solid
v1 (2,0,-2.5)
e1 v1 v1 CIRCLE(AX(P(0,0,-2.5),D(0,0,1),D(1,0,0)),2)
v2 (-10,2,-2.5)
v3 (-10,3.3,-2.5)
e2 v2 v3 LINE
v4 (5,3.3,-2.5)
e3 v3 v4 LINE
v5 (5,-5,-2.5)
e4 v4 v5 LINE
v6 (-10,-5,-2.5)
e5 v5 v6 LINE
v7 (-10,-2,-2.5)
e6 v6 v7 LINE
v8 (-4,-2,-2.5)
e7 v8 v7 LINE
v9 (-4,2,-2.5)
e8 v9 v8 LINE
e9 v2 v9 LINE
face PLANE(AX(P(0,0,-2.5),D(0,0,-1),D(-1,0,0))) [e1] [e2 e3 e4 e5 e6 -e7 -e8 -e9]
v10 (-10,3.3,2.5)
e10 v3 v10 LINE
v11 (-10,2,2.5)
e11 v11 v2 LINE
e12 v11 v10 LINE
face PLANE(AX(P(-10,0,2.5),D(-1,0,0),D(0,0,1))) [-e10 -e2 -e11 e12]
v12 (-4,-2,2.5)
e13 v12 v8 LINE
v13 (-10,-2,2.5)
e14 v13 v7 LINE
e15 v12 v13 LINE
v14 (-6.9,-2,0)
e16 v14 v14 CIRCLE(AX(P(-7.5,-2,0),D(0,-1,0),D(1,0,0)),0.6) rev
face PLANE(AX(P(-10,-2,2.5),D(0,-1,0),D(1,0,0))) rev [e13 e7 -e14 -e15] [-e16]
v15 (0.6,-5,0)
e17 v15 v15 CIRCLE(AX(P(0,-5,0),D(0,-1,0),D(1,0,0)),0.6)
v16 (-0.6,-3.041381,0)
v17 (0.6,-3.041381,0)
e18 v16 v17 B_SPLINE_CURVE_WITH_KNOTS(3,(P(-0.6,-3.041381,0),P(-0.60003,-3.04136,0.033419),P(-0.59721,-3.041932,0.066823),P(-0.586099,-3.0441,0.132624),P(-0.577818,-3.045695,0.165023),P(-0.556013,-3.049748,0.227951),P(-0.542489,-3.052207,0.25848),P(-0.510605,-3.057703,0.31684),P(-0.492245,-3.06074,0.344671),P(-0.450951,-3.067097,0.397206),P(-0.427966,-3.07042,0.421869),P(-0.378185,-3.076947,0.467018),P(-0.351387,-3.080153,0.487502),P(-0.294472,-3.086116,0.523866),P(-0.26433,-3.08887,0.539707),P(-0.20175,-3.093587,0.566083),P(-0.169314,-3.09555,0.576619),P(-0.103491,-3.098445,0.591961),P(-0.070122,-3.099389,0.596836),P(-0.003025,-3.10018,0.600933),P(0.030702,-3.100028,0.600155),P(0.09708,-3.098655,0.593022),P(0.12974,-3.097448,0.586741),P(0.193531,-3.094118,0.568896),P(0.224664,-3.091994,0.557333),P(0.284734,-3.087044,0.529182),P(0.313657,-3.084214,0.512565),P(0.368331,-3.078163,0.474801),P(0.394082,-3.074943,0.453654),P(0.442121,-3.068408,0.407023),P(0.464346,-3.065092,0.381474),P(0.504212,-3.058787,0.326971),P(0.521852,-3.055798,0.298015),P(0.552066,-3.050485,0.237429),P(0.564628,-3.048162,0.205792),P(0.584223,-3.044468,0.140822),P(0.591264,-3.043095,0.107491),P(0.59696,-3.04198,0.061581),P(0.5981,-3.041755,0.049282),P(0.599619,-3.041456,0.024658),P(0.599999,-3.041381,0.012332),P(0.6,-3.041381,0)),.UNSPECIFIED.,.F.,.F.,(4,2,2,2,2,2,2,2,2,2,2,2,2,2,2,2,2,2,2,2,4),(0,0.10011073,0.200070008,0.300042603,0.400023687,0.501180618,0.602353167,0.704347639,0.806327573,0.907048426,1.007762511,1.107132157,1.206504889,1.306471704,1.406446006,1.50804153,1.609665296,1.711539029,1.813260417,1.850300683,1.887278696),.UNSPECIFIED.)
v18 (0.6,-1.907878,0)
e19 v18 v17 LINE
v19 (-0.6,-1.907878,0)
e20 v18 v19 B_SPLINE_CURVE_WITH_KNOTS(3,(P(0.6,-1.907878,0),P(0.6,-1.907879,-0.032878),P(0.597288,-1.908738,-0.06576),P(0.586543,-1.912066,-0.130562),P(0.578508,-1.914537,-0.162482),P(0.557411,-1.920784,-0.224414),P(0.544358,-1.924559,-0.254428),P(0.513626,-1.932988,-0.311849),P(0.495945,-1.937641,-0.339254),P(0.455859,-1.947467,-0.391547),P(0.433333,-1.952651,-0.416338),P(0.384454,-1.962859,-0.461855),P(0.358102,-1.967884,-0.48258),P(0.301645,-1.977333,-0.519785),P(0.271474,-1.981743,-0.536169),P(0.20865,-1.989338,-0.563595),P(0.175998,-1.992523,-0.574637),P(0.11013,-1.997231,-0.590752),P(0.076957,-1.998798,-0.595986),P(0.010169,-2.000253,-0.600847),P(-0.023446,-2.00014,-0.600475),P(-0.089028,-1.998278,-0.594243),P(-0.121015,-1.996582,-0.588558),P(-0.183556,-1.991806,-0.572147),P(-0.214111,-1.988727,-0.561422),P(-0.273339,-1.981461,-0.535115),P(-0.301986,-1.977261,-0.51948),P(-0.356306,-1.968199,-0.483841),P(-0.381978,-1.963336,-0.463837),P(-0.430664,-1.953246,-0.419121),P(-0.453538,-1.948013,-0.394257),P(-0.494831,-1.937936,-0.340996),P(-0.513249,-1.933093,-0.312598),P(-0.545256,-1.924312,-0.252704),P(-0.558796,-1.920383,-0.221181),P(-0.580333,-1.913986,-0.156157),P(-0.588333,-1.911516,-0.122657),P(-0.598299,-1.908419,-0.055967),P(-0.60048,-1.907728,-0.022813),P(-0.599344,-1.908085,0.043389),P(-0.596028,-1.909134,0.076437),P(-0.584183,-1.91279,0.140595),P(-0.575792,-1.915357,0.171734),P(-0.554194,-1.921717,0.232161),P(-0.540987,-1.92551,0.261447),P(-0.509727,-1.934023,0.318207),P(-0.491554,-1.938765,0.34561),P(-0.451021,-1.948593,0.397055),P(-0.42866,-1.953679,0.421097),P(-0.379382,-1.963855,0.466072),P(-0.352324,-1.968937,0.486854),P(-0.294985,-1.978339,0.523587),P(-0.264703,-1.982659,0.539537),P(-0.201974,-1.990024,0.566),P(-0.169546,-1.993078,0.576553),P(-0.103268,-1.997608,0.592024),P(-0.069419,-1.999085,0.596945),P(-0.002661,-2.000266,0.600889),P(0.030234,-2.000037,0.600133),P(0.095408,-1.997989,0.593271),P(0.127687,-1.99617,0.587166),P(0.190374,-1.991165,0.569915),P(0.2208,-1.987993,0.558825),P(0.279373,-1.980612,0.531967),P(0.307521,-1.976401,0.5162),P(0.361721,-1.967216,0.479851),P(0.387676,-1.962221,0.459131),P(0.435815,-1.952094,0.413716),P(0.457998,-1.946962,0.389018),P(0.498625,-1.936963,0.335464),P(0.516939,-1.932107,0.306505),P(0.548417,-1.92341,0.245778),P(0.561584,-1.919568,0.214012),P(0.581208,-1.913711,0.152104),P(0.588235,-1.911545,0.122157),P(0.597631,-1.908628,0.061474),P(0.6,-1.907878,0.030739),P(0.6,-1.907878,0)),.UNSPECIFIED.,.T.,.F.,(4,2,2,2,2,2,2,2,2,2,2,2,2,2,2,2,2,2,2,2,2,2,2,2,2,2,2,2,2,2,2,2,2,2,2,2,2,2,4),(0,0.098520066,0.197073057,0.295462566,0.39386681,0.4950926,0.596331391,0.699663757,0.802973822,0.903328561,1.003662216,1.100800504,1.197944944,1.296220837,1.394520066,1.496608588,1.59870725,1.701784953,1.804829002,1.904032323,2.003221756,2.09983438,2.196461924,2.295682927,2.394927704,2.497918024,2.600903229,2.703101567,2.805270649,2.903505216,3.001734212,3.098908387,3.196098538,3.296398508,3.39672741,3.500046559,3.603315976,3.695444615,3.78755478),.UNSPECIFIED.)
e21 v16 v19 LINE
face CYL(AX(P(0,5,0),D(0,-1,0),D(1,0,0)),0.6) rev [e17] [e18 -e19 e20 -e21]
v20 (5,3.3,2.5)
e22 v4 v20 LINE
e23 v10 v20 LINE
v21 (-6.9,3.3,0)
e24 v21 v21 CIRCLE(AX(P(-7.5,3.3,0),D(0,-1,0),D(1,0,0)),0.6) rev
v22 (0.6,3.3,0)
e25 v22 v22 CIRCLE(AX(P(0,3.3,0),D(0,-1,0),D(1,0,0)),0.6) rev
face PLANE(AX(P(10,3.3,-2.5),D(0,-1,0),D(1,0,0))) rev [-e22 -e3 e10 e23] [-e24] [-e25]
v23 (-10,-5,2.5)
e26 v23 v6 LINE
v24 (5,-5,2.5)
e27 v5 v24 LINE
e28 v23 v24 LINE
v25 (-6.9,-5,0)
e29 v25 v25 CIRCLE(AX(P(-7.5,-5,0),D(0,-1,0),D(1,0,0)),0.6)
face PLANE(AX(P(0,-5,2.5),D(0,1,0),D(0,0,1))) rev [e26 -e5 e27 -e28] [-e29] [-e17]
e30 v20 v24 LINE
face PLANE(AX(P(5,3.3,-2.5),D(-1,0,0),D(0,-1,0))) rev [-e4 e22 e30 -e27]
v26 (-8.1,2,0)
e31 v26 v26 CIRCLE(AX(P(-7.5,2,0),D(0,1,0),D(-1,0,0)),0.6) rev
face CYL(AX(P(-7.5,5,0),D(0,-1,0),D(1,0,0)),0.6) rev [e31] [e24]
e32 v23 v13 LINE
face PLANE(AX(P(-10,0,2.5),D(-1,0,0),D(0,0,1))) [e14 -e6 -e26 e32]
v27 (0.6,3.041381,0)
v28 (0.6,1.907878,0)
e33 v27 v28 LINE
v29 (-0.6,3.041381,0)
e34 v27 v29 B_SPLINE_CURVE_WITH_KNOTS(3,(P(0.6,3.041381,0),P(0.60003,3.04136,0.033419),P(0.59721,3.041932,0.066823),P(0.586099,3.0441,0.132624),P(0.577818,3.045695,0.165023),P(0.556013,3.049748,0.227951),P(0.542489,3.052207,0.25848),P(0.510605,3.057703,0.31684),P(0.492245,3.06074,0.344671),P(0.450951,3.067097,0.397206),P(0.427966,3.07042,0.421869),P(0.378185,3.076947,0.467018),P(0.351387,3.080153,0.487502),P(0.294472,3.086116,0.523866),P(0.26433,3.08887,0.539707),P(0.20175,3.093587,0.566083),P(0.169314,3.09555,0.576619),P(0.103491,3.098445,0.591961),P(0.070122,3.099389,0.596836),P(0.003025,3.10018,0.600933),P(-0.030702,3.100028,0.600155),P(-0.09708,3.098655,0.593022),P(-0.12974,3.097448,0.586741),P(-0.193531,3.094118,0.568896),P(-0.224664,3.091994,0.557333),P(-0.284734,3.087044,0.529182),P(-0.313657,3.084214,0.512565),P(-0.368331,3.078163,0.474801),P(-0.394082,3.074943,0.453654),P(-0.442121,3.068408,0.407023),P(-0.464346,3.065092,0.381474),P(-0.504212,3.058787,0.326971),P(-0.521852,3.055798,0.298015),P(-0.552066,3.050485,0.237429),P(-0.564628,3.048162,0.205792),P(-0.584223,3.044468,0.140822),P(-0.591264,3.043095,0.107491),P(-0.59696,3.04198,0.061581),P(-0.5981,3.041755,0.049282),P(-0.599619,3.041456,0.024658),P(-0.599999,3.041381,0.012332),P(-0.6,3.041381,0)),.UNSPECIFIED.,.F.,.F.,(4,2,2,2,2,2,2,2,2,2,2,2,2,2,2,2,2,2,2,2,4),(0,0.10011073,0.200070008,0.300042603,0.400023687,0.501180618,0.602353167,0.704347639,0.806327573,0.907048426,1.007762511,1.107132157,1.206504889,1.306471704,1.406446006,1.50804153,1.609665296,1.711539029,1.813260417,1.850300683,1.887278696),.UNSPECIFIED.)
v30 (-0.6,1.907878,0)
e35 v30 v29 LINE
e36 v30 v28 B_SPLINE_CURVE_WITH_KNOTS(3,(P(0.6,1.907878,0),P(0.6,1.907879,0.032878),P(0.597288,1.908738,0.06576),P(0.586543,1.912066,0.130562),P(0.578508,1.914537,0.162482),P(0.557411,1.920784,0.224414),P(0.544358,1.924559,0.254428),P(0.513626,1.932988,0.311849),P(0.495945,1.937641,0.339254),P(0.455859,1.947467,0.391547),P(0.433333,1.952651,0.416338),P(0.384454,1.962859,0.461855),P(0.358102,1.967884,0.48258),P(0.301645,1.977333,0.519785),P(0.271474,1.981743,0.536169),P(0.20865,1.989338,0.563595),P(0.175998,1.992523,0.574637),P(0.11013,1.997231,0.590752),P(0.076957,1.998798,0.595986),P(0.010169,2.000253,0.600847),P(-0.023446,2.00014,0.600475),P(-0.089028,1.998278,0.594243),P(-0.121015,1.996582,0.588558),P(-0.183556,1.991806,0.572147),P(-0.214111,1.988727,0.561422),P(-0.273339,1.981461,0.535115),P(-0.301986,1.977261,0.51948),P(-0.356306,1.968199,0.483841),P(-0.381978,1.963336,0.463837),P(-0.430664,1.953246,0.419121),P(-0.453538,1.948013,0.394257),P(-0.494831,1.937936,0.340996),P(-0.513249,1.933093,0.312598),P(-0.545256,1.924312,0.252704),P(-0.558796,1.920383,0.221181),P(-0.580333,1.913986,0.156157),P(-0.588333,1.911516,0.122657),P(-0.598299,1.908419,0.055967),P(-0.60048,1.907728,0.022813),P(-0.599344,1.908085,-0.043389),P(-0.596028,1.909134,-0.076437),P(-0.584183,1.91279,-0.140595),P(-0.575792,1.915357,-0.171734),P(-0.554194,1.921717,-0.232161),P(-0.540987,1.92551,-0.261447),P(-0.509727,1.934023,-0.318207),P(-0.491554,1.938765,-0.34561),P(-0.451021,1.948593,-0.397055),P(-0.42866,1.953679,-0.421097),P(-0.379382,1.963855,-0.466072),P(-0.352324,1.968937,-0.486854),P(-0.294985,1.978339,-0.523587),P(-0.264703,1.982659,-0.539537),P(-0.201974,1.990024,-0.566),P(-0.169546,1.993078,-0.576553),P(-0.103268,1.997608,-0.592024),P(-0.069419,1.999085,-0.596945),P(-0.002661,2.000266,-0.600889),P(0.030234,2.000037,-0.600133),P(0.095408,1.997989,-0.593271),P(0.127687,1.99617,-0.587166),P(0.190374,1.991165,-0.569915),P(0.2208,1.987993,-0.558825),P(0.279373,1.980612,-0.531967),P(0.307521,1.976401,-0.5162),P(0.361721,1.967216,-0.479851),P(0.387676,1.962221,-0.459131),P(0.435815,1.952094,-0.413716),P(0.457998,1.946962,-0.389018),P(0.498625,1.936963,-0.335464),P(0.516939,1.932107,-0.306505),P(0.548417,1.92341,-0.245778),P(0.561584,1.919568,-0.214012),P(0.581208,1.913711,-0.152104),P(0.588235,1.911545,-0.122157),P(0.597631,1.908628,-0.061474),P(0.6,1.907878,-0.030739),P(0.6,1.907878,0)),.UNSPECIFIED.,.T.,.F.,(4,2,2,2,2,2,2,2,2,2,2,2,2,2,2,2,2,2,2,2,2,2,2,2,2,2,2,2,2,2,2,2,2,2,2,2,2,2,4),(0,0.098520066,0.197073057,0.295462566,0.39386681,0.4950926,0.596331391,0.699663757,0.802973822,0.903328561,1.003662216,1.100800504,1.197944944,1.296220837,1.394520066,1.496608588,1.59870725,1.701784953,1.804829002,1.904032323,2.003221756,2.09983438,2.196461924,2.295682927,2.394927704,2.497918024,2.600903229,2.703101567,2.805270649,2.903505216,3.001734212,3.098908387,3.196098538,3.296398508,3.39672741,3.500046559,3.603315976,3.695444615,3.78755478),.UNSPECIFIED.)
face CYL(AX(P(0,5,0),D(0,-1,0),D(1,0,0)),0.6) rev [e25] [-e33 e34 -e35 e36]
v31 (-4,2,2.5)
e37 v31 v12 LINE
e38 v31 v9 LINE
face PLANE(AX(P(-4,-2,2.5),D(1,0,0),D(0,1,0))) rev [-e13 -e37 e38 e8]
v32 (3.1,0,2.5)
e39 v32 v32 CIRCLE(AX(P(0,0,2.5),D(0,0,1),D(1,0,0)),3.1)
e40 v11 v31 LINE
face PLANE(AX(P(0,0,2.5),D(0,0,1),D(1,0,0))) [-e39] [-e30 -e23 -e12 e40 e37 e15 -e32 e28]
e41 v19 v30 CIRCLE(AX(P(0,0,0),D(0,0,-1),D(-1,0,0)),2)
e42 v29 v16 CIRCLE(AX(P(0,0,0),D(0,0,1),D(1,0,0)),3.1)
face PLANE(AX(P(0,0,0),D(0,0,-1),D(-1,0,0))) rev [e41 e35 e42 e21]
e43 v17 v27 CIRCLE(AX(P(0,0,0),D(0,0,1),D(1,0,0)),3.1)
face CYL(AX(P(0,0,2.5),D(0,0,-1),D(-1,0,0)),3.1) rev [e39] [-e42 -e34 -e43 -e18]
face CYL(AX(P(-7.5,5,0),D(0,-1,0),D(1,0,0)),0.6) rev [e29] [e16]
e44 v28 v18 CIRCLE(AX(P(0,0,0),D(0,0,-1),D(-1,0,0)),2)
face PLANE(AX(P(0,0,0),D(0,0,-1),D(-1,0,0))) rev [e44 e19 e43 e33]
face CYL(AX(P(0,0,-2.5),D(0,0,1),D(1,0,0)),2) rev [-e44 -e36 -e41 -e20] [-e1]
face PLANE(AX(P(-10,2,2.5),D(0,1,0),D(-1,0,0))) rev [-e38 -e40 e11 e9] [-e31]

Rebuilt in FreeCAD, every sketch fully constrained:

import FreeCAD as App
import Part
import Sketcher
from FreeCAD import Vector
Q = App.Units.Quantity

doc = App.newDocument("Part")
body = doc.addObject("PartDesign::Body", "Body")

# Sketch on XY plane
sketch1 = body.newObject("Sketcher::SketchObject", "Sketch")
sketch1.AttachmentSupport = (doc.getObject("XY_Plane"), [""])
sketch1.MapMode = "FlatFace"
sketch1.addGeometry([
    Part.LineSegment(Vector(-10, 5, 0), Vector(-10, -5, 0)),  # 0
    Part.LineSegment(Vector(-10, -5, 0), Vector(10, -5, 0)),  # 1
    Part.LineSegment(Vector(10, -5, 0), Vector(10, 5, 0)),  # 2
    Part.LineSegment(Vector(10, 5, 0), Vector(-10, 5, 0)),  # 3
    Part.Circle(Vector(0, 0, 0), Vector(0, 0, 1), 3.1),  # 4
], False)
sketch1.addConstraint([
    Sketcher.Constraint("Coincident", 0, 2, 1, 1),
    Sketcher.Constraint("Coincident", 1, 2, 2, 1),
    Sketcher.Constraint("Coincident", 2, 2, 3, 1),
    Sketcher.Constraint("Coincident", 3, 2, 0, 1),
    Sketcher.Constraint("Vertical", 0),
    Sketcher.Constraint("Horizontal", 1),
    Sketcher.Constraint("Vertical", 2),
    Sketcher.Constraint("Horizontal", 3),
    Sketcher.Constraint("Coincident", 4, 3, -1, 1),
    Sketcher.Constraint("Symmetric", 0, 2, 2, 2, -1, 1),
    Sketcher.Constraint("Diameter", 4, Q("6.2 mm")),
    Sketcher.Constraint("DistanceX", 1, 1, 1, 2, Q("20 mm")),
    Sketcher.Constraint("DistanceY", 0, 2, 0, 1, Q("10 mm")),
])
pad1 = body.newObject("PartDesign::Pad", "Pad")
pad1.Profile = sketch1
pad1.Length = 2.5

# Sketch on XY plane
sketch2 = body.newObject("Sketcher::SketchObject", "Sketch001")
sketch2.AttachmentSupport = (doc.getObject("XY_Plane"), [""])
sketch2.MapMode = "FlatFace"
sketch2.addGeometry([
    Part.LineSegment(Vector(10, 5, 0), Vector(10, -5, 0)),
    Part.LineSegment(Vector(10, -5, 0), Vector(-10, -5, 0)),
    Part.LineSegment(Vector(-10, -5, 0), Vector(-10, 5, 0)),
    Part.LineSegment(Vector(-10, 5, 0), Vector(10, 5, 0)),
], False)
sketch2.addConstraint([
    Sketcher.Constraint("Coincident", 0, 2, 1, 1),
    Sketcher.Constraint("Coincident", 1, 2, 2, 1),
    Sketcher.Constraint("Coincident", 2, 2, 3, 1),
    Sketcher.Constraint("Coincident", 3, 2, 0, 1),
    Sketcher.Constraint("Vertical", 0),
    Sketcher.Constraint("Horizontal", 1),
    Sketcher.Constraint("Vertical", 2),
    Sketcher.Constraint("Horizontal", 3),
    Sketcher.Constraint("Symmetric", 0, 2, 2, 2, -1, 1),
    Sketcher.Constraint("DistanceX", 1, 2, 1, 1, Q("20 mm")),
    Sketcher.Constraint("DistanceY", 0, 2, 0, 1, Q("10 mm")),
])
pad2 = body.newObject("PartDesign::Pad", "Pad001")
pad2.Profile = sketch2
pad2.Length = 2.5
pad2.Reversed = True

# Sketch on XZ plane
sketch3 = body.newObject("Sketcher::SketchObject", "Sketch002")
sketch3.AttachmentSupport = (doc.getObject("XZ_Plane"), [""])
sketch3.MapMode = "FlatFace"
sketch3.AttachmentOffset = App.Placement(Vector(0, 0, 5), App.Rotation())
sketch3.addGeometry([
    Part.Circle(Vector(-7.5, 0, 0), Vector(0, 0, 1), 0.6),
    Part.Circle(Vector(0, 0, 0), Vector(0, 0, 1), 0.6),
], False)
sketch3.addConstraint([
    Sketcher.Constraint("Coincident", 1, 3, -1, 1),
    Sketcher.Constraint("Equal", 0, 1),
    Sketcher.Constraint("PointOnObject", 0, 3, -1),
    Sketcher.Constraint("Diameter", 0, Q("1.2 mm")),
    Sketcher.Constraint("DistanceX", 0, 3, -1, 1, Q("7.5 mm")),
])
pocket1 = body.newObject("PartDesign::Pocket", "Pocket")
pocket1.Profile = sketch3
pocket1.Type = "ThroughAll"

# Sketch on XY plane
sketch4 = body.newObject("Sketcher::SketchObject", "Sketch003")
sketch4.AttachmentSupport = (doc.getObject("XY_Plane"), [""])
sketch4.MapMode = "FlatFace"
sketch4.AttachmentOffset = App.Placement(Vector(0, 0, -2.5), App.Rotation())
sketch4.addGeometry([
    Part.LineSegment(Vector(-4, 2, 0), Vector(-4, -2, 0)),
    Part.LineSegment(Vector(-4, -2, 0), Vector(-10, -2, 0)),
    Part.LineSegment(Vector(-10, -2, 0), Vector(-10, 2, 0)),
    Part.LineSegment(Vector(-10, 2, 0), Vector(-4, 2, 0)),
], False)
sketch4.addConstraint([
    Sketcher.Constraint("Coincident", 0, 2, 1, 1),
    Sketcher.Constraint("Coincident", 1, 2, 2, 1),
    Sketcher.Constraint("Coincident", 2, 2, 3, 1),
    Sketcher.Constraint("Coincident", 3, 2, 0, 1),
    Sketcher.Constraint("Vertical", 0),
    Sketcher.Constraint("Horizontal", 1),
    Sketcher.Constraint("Vertical", 2),
    Sketcher.Constraint("Horizontal", 3),
    Sketcher.Constraint("DistanceX", 1, 2, 1, 1, Q("6 mm")),
    Sketcher.Constraint("DistanceY", 0, 2, 0, 1, Q("4 mm")),
    Sketcher.Constraint("DistanceX", 0, 2, -1, 1, Q("4 mm")),
    Sketcher.Constraint("DistanceY", 0, 2, -1, 1, Q("2 mm")),
])
pocket2 = body.newObject("PartDesign::Pocket", "Pocket001")
pocket2.Profile = sketch4
pocket2.Type = "ThroughAll"
pocket2.Reversed = True

# Sketch on XY plane
sketch5 = body.newObject("Sketcher::SketchObject", "Sketch004")
sketch5.AttachmentSupport = (doc.getObject("XY_Plane"), [""])
sketch5.MapMode = "FlatFace"
sketch5.AttachmentOffset = App.Placement(Vector(0, 0, 2.5), App.Rotation())
sketch5.addGeometry(Part.Circle(Vector(0, 0, 0), Vector(0, 0, 1), 2), False)
sketch5.addConstraint([
    Sketcher.Constraint("Coincident", 0, 3, -1, 1),
    Sketcher.Constraint("Diameter", 0, Q("4 mm")),
])
pocket3 = body.newObject("PartDesign::Pocket", "Pocket002")
pocket3.Profile = sketch5
pocket3.Type = "ThroughAll"

# Sketch on XY plane
sketch6 = body.newObject("Sketcher::SketchObject", "Sketch005")
sketch6.AttachmentSupport = (doc.getObject("XY_Plane"), [""])
sketch6.MapMode = "FlatFace"
sketch6.AttachmentOffset = App.Placement(Vector(0, 0, 2.5), App.Rotation())
sketch6.addGeometry([
    Part.LineSegment(Vector(-10, 5, 0), Vector(-10, 3.3, 0)),
    Part.LineSegment(Vector(-10, 3.3, 0), Vector(10, 3.3, 0)),
    Part.LineSegment(Vector(10, 3.3, 0), Vector(10, 5, 0)),
    Part.LineSegment(Vector(10, 5, 0), Vector(-10, 5, 0)),
], False)
sketch6.addConstraint([
    Sketcher.Constraint("Coincident", 0, 2, 1, 1),
    Sketcher.Constraint("Coincident", 1, 2, 2, 1),
    Sketcher.Constraint("Coincident", 2, 2, 3, 1),
    Sketcher.Constraint("Coincident", 3, 2, 0, 1),
    Sketcher.Constraint("Vertical", 0),
    Sketcher.Constraint("Horizontal", 1),
    Sketcher.Constraint("Vertical", 2),
    Sketcher.Constraint("Horizontal", 3),
    Sketcher.Constraint("DistanceX", 1, 1, 1, 2, Q("20 mm")),
    Sketcher.Constraint("DistanceY", 0, 2, 0, 1, Q("1.7 mm")),
    Sketcher.Constraint("DistanceX", 0, 2, -1, 1, Q("10 mm")),
    Sketcher.Constraint("DistanceY", -1, 1, 2, 2, Q("5 mm")),
])
pocket4 = body.newObject("PartDesign::Pocket", "Pocket003")
pocket4.Profile = sketch6
pocket4.Type = "ThroughAll"

# Sketch on XY plane
sketch7 = body.newObject("Sketcher::SketchObject", "Sketch006")
sketch7.AttachmentSupport = (doc.getObject("XY_Plane"), [""])
sketch7.MapMode = "FlatFace"
sketch7.AttachmentOffset = App.Placement(Vector(0, 0, 2.5), App.Rotation())
sketch7.addGeometry([
    Part.LineSegment(Vector(5, 3, 0), Vector(5, -5, 0)),
    Part.LineSegment(Vector(5, -5, 0), Vector(10, -5, 0)),
    Part.LineSegment(Vector(10, -5, 0), Vector(10, 3, 0)),
    Part.LineSegment(Vector(10, 3, 0), Vector(5, 3, 0)),
], False)
sketch7.addConstraint([
    Sketcher.Constraint("Coincident", 0, 2, 1, 1),
    Sketcher.Constraint("Coincident", 1, 2, 2, 1),
    Sketcher.Constraint("Coincident", 2, 2, 3, 1),
    Sketcher.Constraint("Coincident", 3, 2, 0, 1),
    Sketcher.Constraint("Vertical", 0),
    Sketcher.Constraint("Horizontal", 1),
    Sketcher.Constraint("Vertical", 2),
    Sketcher.Constraint("Horizontal", 3),
    Sketcher.Constraint("DistanceX", 1, 1, 1, 2, Q("5 mm")),
    Sketcher.Constraint("DistanceY", 0, 2, 0, 1, Q("8.3 mm")),
    Sketcher.Constraint("DistanceX", -1, 1, 0, 2, Q("5 mm")),
    Sketcher.Constraint("DistanceY", 0, 2, -1, 1, Q("5 mm")),
])
pocket5 = body.newObject("PartDesign::Pocket", "Pocket004")
pocket5.Profile = sketch7
pocket5.Type = "ThroughAll"

doc.recompute()
